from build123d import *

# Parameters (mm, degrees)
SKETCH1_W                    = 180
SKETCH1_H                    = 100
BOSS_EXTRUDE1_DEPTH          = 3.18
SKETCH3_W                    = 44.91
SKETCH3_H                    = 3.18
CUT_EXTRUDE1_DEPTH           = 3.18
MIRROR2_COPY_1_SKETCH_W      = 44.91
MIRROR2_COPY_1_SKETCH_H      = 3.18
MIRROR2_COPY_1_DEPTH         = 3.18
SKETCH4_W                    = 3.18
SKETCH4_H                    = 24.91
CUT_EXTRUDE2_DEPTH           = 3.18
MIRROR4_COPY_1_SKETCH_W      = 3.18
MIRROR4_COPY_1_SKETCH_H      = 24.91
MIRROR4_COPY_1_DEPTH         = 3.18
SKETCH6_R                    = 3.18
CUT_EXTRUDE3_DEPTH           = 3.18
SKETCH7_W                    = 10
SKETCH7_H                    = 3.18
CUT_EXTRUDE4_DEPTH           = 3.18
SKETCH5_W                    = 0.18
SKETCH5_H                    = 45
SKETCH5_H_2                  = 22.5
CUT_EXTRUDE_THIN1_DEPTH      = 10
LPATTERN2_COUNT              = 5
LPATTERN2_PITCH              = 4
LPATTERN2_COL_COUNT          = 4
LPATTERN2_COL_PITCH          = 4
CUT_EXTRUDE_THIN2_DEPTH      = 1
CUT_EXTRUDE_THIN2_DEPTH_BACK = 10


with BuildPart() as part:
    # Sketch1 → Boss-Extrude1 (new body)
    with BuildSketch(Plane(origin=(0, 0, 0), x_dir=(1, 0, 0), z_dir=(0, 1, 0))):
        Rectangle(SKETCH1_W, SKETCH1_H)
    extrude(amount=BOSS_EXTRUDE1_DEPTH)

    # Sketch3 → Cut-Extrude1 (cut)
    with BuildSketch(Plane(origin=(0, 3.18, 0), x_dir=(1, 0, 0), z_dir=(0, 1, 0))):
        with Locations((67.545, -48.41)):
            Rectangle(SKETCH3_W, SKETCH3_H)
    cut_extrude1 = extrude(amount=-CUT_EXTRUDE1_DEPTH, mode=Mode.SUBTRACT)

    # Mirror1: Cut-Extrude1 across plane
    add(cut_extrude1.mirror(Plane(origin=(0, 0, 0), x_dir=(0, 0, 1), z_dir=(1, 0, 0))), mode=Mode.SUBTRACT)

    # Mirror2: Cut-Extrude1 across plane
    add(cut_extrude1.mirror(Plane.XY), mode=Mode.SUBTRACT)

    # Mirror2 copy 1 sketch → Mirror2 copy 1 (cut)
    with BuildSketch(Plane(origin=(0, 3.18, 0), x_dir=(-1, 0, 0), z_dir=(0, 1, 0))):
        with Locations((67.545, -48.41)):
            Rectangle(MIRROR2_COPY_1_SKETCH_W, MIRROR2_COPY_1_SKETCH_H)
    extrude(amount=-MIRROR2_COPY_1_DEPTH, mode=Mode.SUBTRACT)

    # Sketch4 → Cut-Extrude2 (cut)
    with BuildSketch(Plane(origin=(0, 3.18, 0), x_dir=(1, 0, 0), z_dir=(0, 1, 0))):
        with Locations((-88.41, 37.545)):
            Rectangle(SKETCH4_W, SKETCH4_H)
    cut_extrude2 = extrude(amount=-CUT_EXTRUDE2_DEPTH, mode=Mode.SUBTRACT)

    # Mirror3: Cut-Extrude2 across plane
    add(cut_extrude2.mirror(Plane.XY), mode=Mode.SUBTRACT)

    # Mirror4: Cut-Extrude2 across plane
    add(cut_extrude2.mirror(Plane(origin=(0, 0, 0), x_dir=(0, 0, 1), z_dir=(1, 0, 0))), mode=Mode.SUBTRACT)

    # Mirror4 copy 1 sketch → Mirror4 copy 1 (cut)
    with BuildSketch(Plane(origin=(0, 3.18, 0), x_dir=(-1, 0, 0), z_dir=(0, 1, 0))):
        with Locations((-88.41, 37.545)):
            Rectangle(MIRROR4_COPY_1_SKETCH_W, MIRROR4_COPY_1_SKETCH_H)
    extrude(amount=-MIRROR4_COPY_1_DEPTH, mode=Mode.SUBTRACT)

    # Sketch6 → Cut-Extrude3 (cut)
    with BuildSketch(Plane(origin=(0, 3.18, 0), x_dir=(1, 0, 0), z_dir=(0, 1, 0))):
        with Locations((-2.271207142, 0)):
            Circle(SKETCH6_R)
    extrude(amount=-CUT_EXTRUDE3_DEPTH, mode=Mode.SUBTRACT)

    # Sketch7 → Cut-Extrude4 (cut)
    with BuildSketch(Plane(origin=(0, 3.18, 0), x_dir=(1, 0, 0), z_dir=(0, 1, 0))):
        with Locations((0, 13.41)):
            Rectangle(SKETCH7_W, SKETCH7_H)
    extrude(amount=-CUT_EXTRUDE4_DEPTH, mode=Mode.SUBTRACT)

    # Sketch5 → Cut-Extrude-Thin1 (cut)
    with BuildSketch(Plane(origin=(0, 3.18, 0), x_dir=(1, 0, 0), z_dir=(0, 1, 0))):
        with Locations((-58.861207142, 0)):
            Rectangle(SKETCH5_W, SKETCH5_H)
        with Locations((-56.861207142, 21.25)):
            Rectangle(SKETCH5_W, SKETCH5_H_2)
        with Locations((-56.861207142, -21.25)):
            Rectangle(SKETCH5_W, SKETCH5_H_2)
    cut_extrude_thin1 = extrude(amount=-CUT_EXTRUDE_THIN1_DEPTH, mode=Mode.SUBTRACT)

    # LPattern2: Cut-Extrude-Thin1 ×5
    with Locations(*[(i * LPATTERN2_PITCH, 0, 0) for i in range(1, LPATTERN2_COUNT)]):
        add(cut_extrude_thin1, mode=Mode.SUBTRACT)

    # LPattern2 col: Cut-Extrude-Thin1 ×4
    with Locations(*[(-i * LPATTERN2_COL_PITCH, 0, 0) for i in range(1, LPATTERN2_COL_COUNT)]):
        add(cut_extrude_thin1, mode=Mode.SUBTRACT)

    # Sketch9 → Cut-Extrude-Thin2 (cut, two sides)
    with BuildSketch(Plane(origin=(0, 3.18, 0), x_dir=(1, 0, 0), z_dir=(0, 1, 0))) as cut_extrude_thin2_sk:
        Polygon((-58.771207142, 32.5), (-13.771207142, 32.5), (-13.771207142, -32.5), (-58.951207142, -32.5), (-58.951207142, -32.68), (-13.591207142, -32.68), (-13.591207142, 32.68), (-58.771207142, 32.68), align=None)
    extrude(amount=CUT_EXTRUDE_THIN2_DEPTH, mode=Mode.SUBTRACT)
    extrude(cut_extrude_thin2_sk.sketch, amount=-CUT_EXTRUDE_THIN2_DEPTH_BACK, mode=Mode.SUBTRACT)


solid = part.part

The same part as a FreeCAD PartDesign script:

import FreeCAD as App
import Part
import Sketcher

V = App.Vector
Q = App.Units.Quantity

doc = App.newDocument("Part")
body = doc.addObject("PartDesign::Body", "Body")

# Sketch on XZ plane
sketch1 = body.newObject("Sketcher::SketchObject", "Sketch")
sketch1.AttachmentSupport = (doc.getObject("XZ_Plane"), [""])
sketch1.MapMode = "FlatFace"
sketch1.addGeometry(Part.LineSegment(V(-90, -50, 0), V(-90, 50, 0)), False)
sketch1.addGeometry(Part.LineSegment(V(-90, 50, 0), V(90, 50, 0)), False)
sketch1.addGeometry(Part.LineSegment(V(90, 50, 0), V(90, -50, 0)), False)
sketch1.addGeometry(Part.LineSegment(V(90, -50, 0), V(-90, -50, 0)), False)
sketch1.addConstraint(Sketcher.Constraint("Coincident", 0, 2, 1, 1))
sketch1.addConstraint(Sketcher.Constraint("Coincident", 1, 2, 2, 1))
sketch1.addConstraint(Sketcher.Constraint("Coincident", 2, 2, 3, 1))
sketch1.addConstraint(Sketcher.Constraint("Coincident", 3, 2, 0, 1))
sketch1.addConstraint(Sketcher.Constraint("Vertical", 0))
sketch1.addConstraint(Sketcher.Constraint("Horizontal", 1))
sketch1.addConstraint(Sketcher.Constraint("Vertical", 2))
sketch1.addConstraint(Sketcher.Constraint("Horizontal", 3))
sketch1.addConstraint(Sketcher.Constraint("Symmetric", 0, 2, 2, 2, -1, 1))
sketch1.addConstraint(Sketcher.Constraint("DistanceX", 1, 1, 1, 2, Q("180 mm")))
sketch1.addConstraint(Sketcher.Constraint("DistanceY", 0, 1, 0, 2, Q("100 mm")))
pad1 = body.newObject("PartDesign::Pad", "Pad")
pad1.Profile = sketch1
pad1.Length = 3.18
pad1.Reversed = True

# Sketch on XZ plane
sketch2 = body.newObject("Sketcher::SketchObject", "Sketch001")
sketch2.AttachmentSupport = (doc.getObject("XZ_Plane"), [""])
sketch2.MapMode = "FlatFace"
sketch2.AttachmentOffset = App.Placement(V(0, 0, -3.18), App.Rotation())
sketch2.addGeometry(Part.LineSegment(V(45.1, 46.8, 0), V(45.1, 50, 0)), False)
sketch2.addGeometry(Part.LineSegment(V(45.1, 50, 0), V(90, 50, 0)), False)
sketch2.addGeometry(Part.LineSegment(V(90, 50, 0), V(90, 46.8, 0)), False)
sketch2.addGeometry(Part.LineSegment(V(90, 46.8, 0), V(45.1, 46.8, 0)), False)
sketch2.addConstraint(Sketcher.Constraint("Coincident", 0, 2, 1, 1))
sketch2.addConstraint(Sketcher.Constraint("Coincident", 1, 2, 2, 1))
sketch2.addConstraint(Sketcher.Constraint("Coincident", 2, 2, 3, 1))
sketch2.addConstraint(Sketcher.Constraint("Coincident", 3, 2, 0, 1))
sketch2.addConstraint(Sketcher.Constraint("Vertical", 0))
sketch2.addConstraint(Sketcher.Constraint("Horizontal", 1))
sketch2.addConstraint(Sketcher.Constraint("Vertical", 2))
sketch2.addConstraint(Sketcher.Constraint("Horizontal", 3))
sketch2.addConstraint(Sketcher.Constraint("DistanceY", -1, 1, 0, 2, Q("50 mm")))
sketch2.addConstraint(Sketcher.Constraint("DistanceX", -1, 1, 1, 2, Q("90 mm")))
sketch2.addConstraint(Sketcher.Constraint("DistanceX", 1, 1, 1, 2, Q("44.91 mm")))
sketch2.addConstraint(Sketcher.Constraint("DistanceY", 0, 1, 0, 2, Q("3.18 mm")))
pocket1 = body.newObject("PartDesign::Pocket", "Pocket")
pocket1.Profile = sketch2
pocket1.Length = 3.18
pocket1.Reversed = True
doc.recompute()

mirrored = body.newObject("PartDesign::Mirrored", "Mirrored")
mirrored.Originals = [pocket1]
mirrored.MirrorPlane = (doc.getObject("YZ_Plane"), [""])
body.Tip = mirrored
doc.recompute()

mirrored2 = body.newObject("PartDesign::Mirrored", "Mirrored001")
mirrored2.Originals = [pocket1]
mirrored2.MirrorPlane = (doc.getObject("XY_Plane"), [""])
body.Tip = mirrored2

# Sketch on XZ plane
sketch3 = body.newObject("Sketcher::SketchObject", "Sketch002")
sketch3.AttachmentSupport = (doc.getObject("XZ_Plane"), [""])
sketch3.MapMode = "FlatFace"
sketch3.AttachmentOffset = App.Placement(V(0, 0, -3.18), App.Rotation())
sketch3.addGeometry(Part.LineSegment(V(-45.1, -46.8, 0), V(-45.1, -50, 0)), False)
sketch3.addGeometry(Part.LineSegment(V(-45.1, -50, 0), V(-90, -50, 0)), False)
sketch3.addGeometry(Part.LineSegment(V(-90, -50, 0), V(-90, -46.8, 0)), False)
sketch3.addGeometry(Part.LineSegment(V(-90, -46.8, 0), V(-45.1, -46.8, 0)), False)
sketch3.addConstraint(Sketcher.Constraint("Coincident", 0, 2, 1, 1))
sketch3.addConstraint(Sketcher.Constraint("Coincident", 1, 2, 2, 1))
sketch3.addConstraint(Sketcher.Constraint("Coincident", 2, 2, 3, 1))
sketch3.addConstraint(Sketcher.Constraint("Coincident", 3, 2, 0, 1))
sketch3.addConstraint(Sketcher.Constraint("Vertical", 0))
sketch3.addConstraint(Sketcher.Constraint("Horizontal", 1))
sketch3.addConstraint(Sketcher.Constraint("Vertical", 2))
sketch3.addConstraint(Sketcher.Constraint("Horizontal", 3))
sketch3.addConstraint(Sketcher.Constraint("DistanceY", 0, 2, -1, 1, Q("50 mm")))
sketch3.addConstraint(Sketcher.Constraint("DistanceX", 1, 2, -1, 1, Q("90 mm")))
sketch3.addConstraint(Sketcher.Constraint("DistanceX", 1, 2, 1, 1, Q("44.91 mm")))
sketch3.addConstraint(Sketcher.Constraint("DistanceY", 0, 2, 0, 1, Q("3.18 mm")))
pocket2 = body.newObject("PartDesign::Pocket", "Pocket001")
pocket2.Profile = sketch3
pocket2.Length = 3.18
pocket2.Reversed = True

# Sketch on XZ plane
sketch4 = body.newObject("Sketcher::SketchObject", "Sketch003")
sketch4.AttachmentSupport = (doc.getObject("XZ_Plane"), [""])
sketch4.MapMode = "FlatFace"
sketch4.AttachmentOffset = App.Placement(V(0, 0, -3.18), App.Rotation())
sketch4.addGeometry(Part.LineSegment(V(-90, -50, 0), V(-90, -25.1, 0)), False)
sketch4.addGeometry(Part.LineSegment(V(-90, -25.1, 0), V(-86.8, -25.1, 0)), False)
sketch4.addGeometry(Part.LineSegment(V(-86.8, -25.1, 0), V(-86.8, -50, 0)), False)
sketch4.addGeometry(Part.LineSegment(V(-86.8, -50, 0), V(-90, -50, 0)), False)
sketch4.addConstraint(Sketcher.Constraint("Coincident", 0, 2, 1, 1))
sketch4.addConstraint(Sketcher.Constraint("Coincident", 1, 2, 2, 1))
sketch4.addConstraint(Sketcher.Constraint("Coincident", 2, 2, 3, 1))
sketch4.addConstraint(Sketcher.Constraint("Coincident", 3, 2, 0, 1))
sketch4.addConstraint(Sketcher.Constraint("Vertical", 0))
sketch4.addConstraint(Sketcher.Constraint("Horizontal", 1))
sketch4.addConstraint(Sketcher.Constraint("Vertical", 2))
sketch4.addConstraint(Sketcher.Constraint("Horizontal", 3))
sketch4.addConstraint(Sketcher.Constraint("DistanceX", 0, 2, -1, 1, Q("90 mm")))
sketch4.addConstraint(Sketcher.Constraint("DistanceY", 2, 2, -1, 1, Q("50 mm")))
sketch4.addConstraint(Sketcher.Constraint("DistanceX", 1, 1, 1, 2, Q("3.18 mm")))
sketch4.addConstraint(Sketcher.Constraint("DistanceY", 0, 1, 0, 2, Q("24.91 mm")))
pocket3 = body.newObject("PartDesign::Pocket", "Pocket002")
pocket3.Profile = sketch4
pocket3.Length = 3.18
pocket3.Reversed = True
doc.recompute()

mirrored3 = body.newObject("PartDesign::Mirrored", "Mirrored002")
mirrored3.Originals = [pocket3]
mirrored3.MirrorPlane = (doc.getObject("XY_Plane"), [""])
body.Tip = mirrored3
doc.recompute()

mirrored4 = body.newObject("PartDesign::Mirrored", "Mirrored003")
mirrored4.Originals = [pocket3]
mirrored4.MirrorPlane = (doc.getObject("YZ_Plane"), [""])
body.Tip = mirrored4

# Sketch on XZ plane
sketch5 = body.newObject("Sketcher::SketchObject", "Sketch004")
sketch5.AttachmentSupport = (doc.getObject("XZ_Plane"), [""])
sketch5.MapMode = "FlatFace"
sketch5.AttachmentOffset = App.Placement(V(0, 0, -3.18), App.Rotation())
sketch5.addGeometry(Part.LineSegment(V(90, 50, 0), V(90, 25.1, 0)), False)
sketch5.addGeometry(Part.LineSegment(V(90, 25.1, 0), V(86.8, 25.1, 0)), False)
sketch5.addGeometry(Part.LineSegment(V(86.8, 25.1, 0), V(86.8, 50, 0)), False)
sketch5.addGeometry(Part.LineSegment(V(86.8, 50, 0), V(90, 50, 0)), False)
sketch5.addConstraint(Sketcher.Constraint("Coincident", 0, 2, 1, 1))
sketch5.addConstraint(Sketcher.Constraint("Coincident", 1, 2, 2, 1))
sketch5.addConstraint(Sketcher.Constraint("Coincident", 2, 2, 3, 1))
sketch5.addConstraint(Sketcher.Constraint("Coincident", 3, 2, 0, 1))
sketch5.addConstraint(Sketcher.Constraint("Vertical", 0))
sketch5.addConstraint(Sketcher.Constraint("Horizontal", 1))
sketch5.addConstraint(Sketcher.Constraint("Vertical", 2))
sketch5.addConstraint(Sketcher.Constraint("Horizontal", 3))
sketch5.addConstraint(Sketcher.Constraint("DistanceX", -1, 1, 0, 2, Q("90 mm")))
sketch5.addConstraint(Sketcher.Constraint("DistanceY", -1, 1, 2, 2, Q("50 mm")))
sketch5.addConstraint(Sketcher.Constraint("DistanceX", 1, 2, 1, 1, Q("3.18 mm")))
sketch5.addConstraint(Sketcher.Constraint("DistanceY", 0, 2, 0, 1, Q("24.91 mm")))
pocket4 = body.newObject("PartDesign::Pocket", "Pocket003")
pocket4.Profile = sketch5
pocket4.Length = 3.18
pocket4.Reversed = True

# Sketch on XZ plane
sketch6 = body.newObject("Sketcher::SketchObject", "Sketch005")
sketch6.AttachmentSupport = (doc.getObject("XZ_Plane"), [""])
sketch6.MapMode = "FlatFace"
sketch6.AttachmentOffset = App.Placement(V(0, 0, -3.18), App.Rotation())
sketch6.addGeometry(Part.Circle(V(-2.3, 0, 0), V(0, 0, 1), 3.2), False)
sketch6.addConstraint(Sketcher.Constraint("PointOnObject", 0, 3, -1))
sketch6.addConstraint(Sketcher.Constraint("Diameter", 0, Q("6.36 mm")))
sketch6.addConstraint(Sketcher.Constraint("DistanceX", 0, 3, -1, 1, Q("2.271207 mm")))
pocket5 = body.newObject("PartDesign::Pocket", "Pocket004")
pocket5.Profile = sketch6
pocket5.Length = 3.18
pocket5.Reversed = True

# Sketch on XZ plane
sketch7 = body.newObject("Sketcher::SketchObject", "Sketch006")
sketch7.AttachmentSupport = (doc.getObject("XZ_Plane"), [""])
sketch7.MapMode = "FlatFace"
sketch7.AttachmentOffset = App.Placement(V(0, 0, -3.18), App.Rotation())
sketch7.addGeometry(Part.LineSegment(V(-5, -15, 0), V(-5, -11.8, 0)), False)
sketch7.addGeometry(Part.LineSegment(V(-5, -11.8, 0), V(5, -11.8, 0)), False)
sketch7.addGeometry(Part.LineSegment(V(5, -11.8, 0), V(5, -15, 0)), False)
sketch7.addGeometry(Part.LineSegment(V(5, -15, 0), V(-5, -15, 0)), False)
sketch7.addConstraint(Sketcher.Constraint("Coincident", 0, 2, 1, 1))
sketch7.addConstraint(Sketcher.Constraint("Coincident", 1, 2, 2, 1))
sketch7.addConstraint(Sketcher.Constraint("Coincident", 2, 2, 3, 1))
sketch7.addConstraint(Sketcher.Constraint("Coincident", 3, 2, 0, 1))
sketch7.addConstraint(Sketcher.Constraint("Vertical", 0))
sketch7.addConstraint(Sketcher.Constraint("Horizontal", 1))
sketch7.addConstraint(Sketcher.Constraint("Vertical", 2))
sketch7.addConstraint(Sketcher.Constraint("Horizontal", 3))
sketch7.addConstraint(Sketcher.Constraint("DistanceX", 1, 1, 1, 2, Q("10 mm")))
sketch7.addConstraint(Sketcher.Constraint("DistanceX", 0, 2, -1, 1, Q("5 mm")))
sketch7.addConstraint(Sketcher.Constraint("DistanceY", 2, 2, -1, 1, Q("15 mm")))
sketch7.addConstraint(Sketcher.Constraint("DistanceY", 0, 1, 0, 2, Q("3.18 mm")))
pocket6 = body.newObject("PartDesign::Pocket", "Pocket005")
pocket6.Profile = sketch7
pocket6.Length = 3.18
pocket6.Reversed = True

# Sketch on XZ plane
sketch8 = body.newObject("Sketcher::SketchObject", "Sketch007")
sketch8.AttachmentSupport = (doc.getObject("XZ_Plane"), [""])
sketch8.MapMode = "FlatFace"
sketch8.AttachmentOffset = App.Placement(V(0, 0, -3.18), App.Rotation())
sketch8.addGeometry(Part.LineSegment(V(-58.95, -22.5, 0), V(-58.95, 22.5, 0)), False)
sketch8.addGeometry(Part.LineSegment(V(-58.95, 22.5, 0), V(-58.77, 22.5, 0)), False)
sketch8.addGeometry(Part.LineSegment(V(-58.77, 22.5, 0), V(-58.77, -22.5, 0)), False)
sketch8.addGeometry(Part.LineSegment(V(-58.77, -22.5, 0), V(-58.95, -22.5, 0)), False)
sketch8.addGeometry(Part.LineSegment(V(-56.95, -32.5, 0), V(-56.95, -10, 0)), False)
sketch8.addGeometry(Part.LineSegment(V(-56.95, -10, 0), V(-56.77, -10, 0)), False)
sketch8.addGeometry(Part.LineSegment(V(-56.77, -10, 0), V(-56.77, -32.5, 0)), False)
sketch8.addGeometry(Part.LineSegment(V(-56.77, -32.5, 0), V(-56.95, -32.5, 0)), False)
sketch8.addGeometry(Part.LineSegment(V(-56.95, 10, 0), V(-56.95, 32.5, 0)), False)
sketch8.addGeometry(Part.LineSegment(V(-56.95, 32.5, 0), V(-56.77, 32.5, 0)), False)
sketch8.addGeometry(Part.LineSegment(V(-56.77, 32.5, 0), V(-56.77, 10, 0)), False)
sketch8.addGeometry(Part.LineSegment(V(-56.77, 10, 0), V(-56.95, 10, 0)), False)
sketch8.addConstraint(Sketcher.Constraint("Coincident", 0, 2, 1, 1))
sketch8.addConstraint(Sketcher.Constraint("Coincident", 1, 2, 2, 1))
sketch8.addConstraint(Sketcher.Constraint("Coincident", 2, 2, 3, 1))
sketch8.addConstraint(Sketcher.Constraint("Coincident", 3, 2, 0, 1))
sketch8.addConstraint(Sketcher.Constraint("Coincident", 4, 2, 5, 1))
sketch8.addConstraint(Sketcher.Constraint("Coincident", 5, 2, 6, 1))
sketch8.addConstraint(Sketcher.Constraint("Coincident", 6, 2, 7, 1))
sketch8.addConstraint(Sketcher.Constraint("Coincident", 7, 2, 4, 1))
sketch8.addConstraint(Sketcher.Constraint("Coincident", 8, 2, 9, 1))
sketch8.addConstraint(Sketcher.Constraint("Coincident", 9, 2, 10, 1))
sketch8.addConstraint(Sketcher.Constraint("Coincident", 10, 2, 11, 1))
sketch8.addConstraint(Sketcher.Constraint("Coincident", 11, 2, 8, 1))
sketch8.addConstraint(Sketcher.Constraint("Vertical", 0))
sketch8.addConstraint(Sketcher.Constraint("Horizontal", 1))
sketch8.addConstraint(Sketcher.Constraint("Vertical", 2))
sketch8.addConstraint(Sketcher.Constraint("Horizontal", 3))
sketch8.addConstraint(Sketcher.Constraint("Vertical", 4))
sketch8.addConstraint(Sketcher.Constraint("Horizontal", 5))
sketch8.addConstraint(Sketcher.Constraint("Vertical", 6))
sketch8.addConstraint(Sketcher.Constraint("Horizontal", 7))
sketch8.addConstraint(Sketcher.Constraint("Vertical", 8))
sketch8.addConstraint(Sketcher.Constraint("Horizontal", 9))
sketch8.addConstraint(Sketcher.Constraint("Vertical", 10))
sketch8.addConstraint(Sketcher.Constraint("Horizontal", 11))
sketch8.addConstraint(Sketcher.Constraint("Symmetric", 7, 2, 8, 2, -1))
sketch8.addConstraint(Sketcher.Constraint("Symmetric", 5, 2, 10, 2, -1))
sketch8.addConstraint(Sketcher.Constraint("Equal", 3, 5))
sketch8.addConstraint(Sketcher.Constraint("DistanceY", 0, 1, 0, 2, Q("45 mm")))
sketch8.addConstraint(Sketcher.Constraint("DistanceY", 4, 1, 4, 2, Q("22.5 mm")))
sketch8.addConstraint(Sketcher.Constraint("DistanceY", 4, 2, -1, 1, Q("10 mm")))
sketch8.addConstraint(Sketcher.Constraint("DistanceX", 3, 2, 4, 2, Q("2 mm")))
sketch8.addConstraint(Sketcher.Constraint("DistanceY", 6, 2, 2, 2, Q("10 mm")))
sketch8.addConstraint(Sketcher.Constraint("DistanceX", 1, 1, 1, 2, Q("0.18 mm")))
sketch8.addConstraint(Sketcher.Constraint("DistanceX", 0, 2, -1, 1, Q("58.951207 mm")))
pocket7 = body.newObject("PartDesign::Pocket", "Pocket006")
pocket7.Profile = sketch8
pocket7.Length = 10
pocket7.Reversed = True
doc.recompute()

linearpattern = body.newObject("PartDesign::LinearPattern", "LinearPattern")
linearpattern.Originals = [pocket7]
linearpattern.Direction = (doc.getObject("X_Axis"), [""])
linearpattern.Mode = "offset"
linearpattern.Offset = 4
linearpattern.Occurrences = 5
body.Tip = linearpattern
doc.recompute()

linearpattern2 = body.newObject("PartDesign::LinearPattern", "LinearPattern001")
linearpattern2.Originals = [pocket7]
linearpattern2.Direction = (doc.getObject("X_Axis"), [""])
linearpattern2.Mode = "offset"
linearpattern2.Offset = 4
linearpattern2.Occurrences = 4
linearpattern2.Reversed = True
body.Tip = linearpattern2

# Sketch on XZ plane
sketch9 = body.newObject("Sketcher::SketchObject", "Sketch008")
sketch9.AttachmentSupport = (doc.getObject("XZ_Plane"), [""])
sketch9.MapMode = "FlatFace"
sketch9.AttachmentOffset = App.Placement(V(0, 0, -3.18), App.Rotation())
sketch9.addGeometry(Part.LineSegment(V(-58.77, -32.5, 0), V(-13.77, -32.5, 0)), False)
sketch9.addGeometry(Part.LineSegment(V(-13.77, -32.5, 0), V(-13.77, 32.5, 0)), False)
sketch9.addGeometry(Part.LineSegment(V(-13.77, 32.5, 0), V(-58.95, 32.5, 0)), False)
sketch9.addGeometry(Part.LineSegment(V(-58.95, 32.5, 0), V(-58.95, 32.68, 0)), False)
sketch9.addGeometry(Part.LineSegment(V(-58.95, 32.68, 0), V(-13.59, 32.68, 0)), False)
sketch9.addGeometry(Part.LineSegment(V(-13.59, 32.68, 0), V(-13.59, -32.68, 0)), False)
sketch9.addGeometry(Part.LineSegment(V(-13.59, -32.68, 0), V(-58.77, -32.68, 0)), False)
sketch9.addGeometry(Part.LineSegment(V(-58.77, -32.68, 0), V(-58.77, -32.5, 0)), False)
sketch9.addConstraint(Sketcher.Constraint("Coincident", 0, 2, 1, 1))
sketch9.addConstraint(Sketcher.Constraint("Coincident", 1, 2, 2, 1))
sketch9.addConstraint(Sketcher.Constraint("Coincident", 2, 2, 3, 1))
sketch9.addConstraint(Sketcher.Constraint("Coincident", 3, 2, 4, 1))
sketch9.addConstraint(Sketcher.Constraint("Coincident", 4, 2, 5, 1))
sketch9.addConstraint(Sketcher.Constraint("Coincident", 5, 2, 6, 1))
sketch9.addConstraint(Sketcher.Constraint("Coincident", 6, 2, 7, 1))
sketch9.addConstraint(Sketcher.Constraint("Coincident", 7, 2, 0, 1))
sketch9.addConstraint(Sketcher.Constraint("Horizontal", 0))
sketch9.addConstraint(Sketcher.Constraint("Vertical", 1))
sketch9.addConstraint(Sketcher.Constraint("Horizontal", 2))
sketch9.addConstraint(Sketcher.Constraint("Vertical", 3))
sketch9.addConstraint(Sketcher.Constraint("Horizontal", 4))
sketch9.addConstraint(Sketcher.Constraint("Vertical", 5))
sketch9.addConstraint(Sketcher.Constraint("Horizontal", 6))
sketch9.addConstraint(Sketcher.Constraint("Vertical", 7))
sketch9.addConstraint(Sketcher.Constraint("Equal", 2, 6))
sketch9.addConstraint(Sketcher.Constraint("Equal", 3, 7))
sketch9.addConstraint(Sketcher.Constraint("DistanceX", 0, 1, 0, 2, Q("45 mm")))
sketch9.addConstraint(Sketcher.Constraint("DistanceY", 1, 1, 1, 2, Q("65 mm")))
sketch9.addConstraint(Sketcher.Constraint("DistanceX", 2, 2, 2, 1, Q("45.18 mm")))
sketch9.addConstraint(Sketcher.Constraint("DistanceY", 3, 1, 3, 2, Q("0.18 mm")))
sketch9.addConstraint(Sketcher.Constraint("DistanceY", 0, 2, -1, 1, Q("32.5 mm")))
sketch9.addConstraint(Sketcher.Constraint("DistanceX", 0, 2, -1, 1, Q("13.771207 mm")))
pocket8 = body.newObject("PartDesign::Pocket", "Pocket007")
pocket8.Profile = sketch9
pocket8.Type = "ThroughAll"
pocket8.Midplane = True

doc.recompute()
